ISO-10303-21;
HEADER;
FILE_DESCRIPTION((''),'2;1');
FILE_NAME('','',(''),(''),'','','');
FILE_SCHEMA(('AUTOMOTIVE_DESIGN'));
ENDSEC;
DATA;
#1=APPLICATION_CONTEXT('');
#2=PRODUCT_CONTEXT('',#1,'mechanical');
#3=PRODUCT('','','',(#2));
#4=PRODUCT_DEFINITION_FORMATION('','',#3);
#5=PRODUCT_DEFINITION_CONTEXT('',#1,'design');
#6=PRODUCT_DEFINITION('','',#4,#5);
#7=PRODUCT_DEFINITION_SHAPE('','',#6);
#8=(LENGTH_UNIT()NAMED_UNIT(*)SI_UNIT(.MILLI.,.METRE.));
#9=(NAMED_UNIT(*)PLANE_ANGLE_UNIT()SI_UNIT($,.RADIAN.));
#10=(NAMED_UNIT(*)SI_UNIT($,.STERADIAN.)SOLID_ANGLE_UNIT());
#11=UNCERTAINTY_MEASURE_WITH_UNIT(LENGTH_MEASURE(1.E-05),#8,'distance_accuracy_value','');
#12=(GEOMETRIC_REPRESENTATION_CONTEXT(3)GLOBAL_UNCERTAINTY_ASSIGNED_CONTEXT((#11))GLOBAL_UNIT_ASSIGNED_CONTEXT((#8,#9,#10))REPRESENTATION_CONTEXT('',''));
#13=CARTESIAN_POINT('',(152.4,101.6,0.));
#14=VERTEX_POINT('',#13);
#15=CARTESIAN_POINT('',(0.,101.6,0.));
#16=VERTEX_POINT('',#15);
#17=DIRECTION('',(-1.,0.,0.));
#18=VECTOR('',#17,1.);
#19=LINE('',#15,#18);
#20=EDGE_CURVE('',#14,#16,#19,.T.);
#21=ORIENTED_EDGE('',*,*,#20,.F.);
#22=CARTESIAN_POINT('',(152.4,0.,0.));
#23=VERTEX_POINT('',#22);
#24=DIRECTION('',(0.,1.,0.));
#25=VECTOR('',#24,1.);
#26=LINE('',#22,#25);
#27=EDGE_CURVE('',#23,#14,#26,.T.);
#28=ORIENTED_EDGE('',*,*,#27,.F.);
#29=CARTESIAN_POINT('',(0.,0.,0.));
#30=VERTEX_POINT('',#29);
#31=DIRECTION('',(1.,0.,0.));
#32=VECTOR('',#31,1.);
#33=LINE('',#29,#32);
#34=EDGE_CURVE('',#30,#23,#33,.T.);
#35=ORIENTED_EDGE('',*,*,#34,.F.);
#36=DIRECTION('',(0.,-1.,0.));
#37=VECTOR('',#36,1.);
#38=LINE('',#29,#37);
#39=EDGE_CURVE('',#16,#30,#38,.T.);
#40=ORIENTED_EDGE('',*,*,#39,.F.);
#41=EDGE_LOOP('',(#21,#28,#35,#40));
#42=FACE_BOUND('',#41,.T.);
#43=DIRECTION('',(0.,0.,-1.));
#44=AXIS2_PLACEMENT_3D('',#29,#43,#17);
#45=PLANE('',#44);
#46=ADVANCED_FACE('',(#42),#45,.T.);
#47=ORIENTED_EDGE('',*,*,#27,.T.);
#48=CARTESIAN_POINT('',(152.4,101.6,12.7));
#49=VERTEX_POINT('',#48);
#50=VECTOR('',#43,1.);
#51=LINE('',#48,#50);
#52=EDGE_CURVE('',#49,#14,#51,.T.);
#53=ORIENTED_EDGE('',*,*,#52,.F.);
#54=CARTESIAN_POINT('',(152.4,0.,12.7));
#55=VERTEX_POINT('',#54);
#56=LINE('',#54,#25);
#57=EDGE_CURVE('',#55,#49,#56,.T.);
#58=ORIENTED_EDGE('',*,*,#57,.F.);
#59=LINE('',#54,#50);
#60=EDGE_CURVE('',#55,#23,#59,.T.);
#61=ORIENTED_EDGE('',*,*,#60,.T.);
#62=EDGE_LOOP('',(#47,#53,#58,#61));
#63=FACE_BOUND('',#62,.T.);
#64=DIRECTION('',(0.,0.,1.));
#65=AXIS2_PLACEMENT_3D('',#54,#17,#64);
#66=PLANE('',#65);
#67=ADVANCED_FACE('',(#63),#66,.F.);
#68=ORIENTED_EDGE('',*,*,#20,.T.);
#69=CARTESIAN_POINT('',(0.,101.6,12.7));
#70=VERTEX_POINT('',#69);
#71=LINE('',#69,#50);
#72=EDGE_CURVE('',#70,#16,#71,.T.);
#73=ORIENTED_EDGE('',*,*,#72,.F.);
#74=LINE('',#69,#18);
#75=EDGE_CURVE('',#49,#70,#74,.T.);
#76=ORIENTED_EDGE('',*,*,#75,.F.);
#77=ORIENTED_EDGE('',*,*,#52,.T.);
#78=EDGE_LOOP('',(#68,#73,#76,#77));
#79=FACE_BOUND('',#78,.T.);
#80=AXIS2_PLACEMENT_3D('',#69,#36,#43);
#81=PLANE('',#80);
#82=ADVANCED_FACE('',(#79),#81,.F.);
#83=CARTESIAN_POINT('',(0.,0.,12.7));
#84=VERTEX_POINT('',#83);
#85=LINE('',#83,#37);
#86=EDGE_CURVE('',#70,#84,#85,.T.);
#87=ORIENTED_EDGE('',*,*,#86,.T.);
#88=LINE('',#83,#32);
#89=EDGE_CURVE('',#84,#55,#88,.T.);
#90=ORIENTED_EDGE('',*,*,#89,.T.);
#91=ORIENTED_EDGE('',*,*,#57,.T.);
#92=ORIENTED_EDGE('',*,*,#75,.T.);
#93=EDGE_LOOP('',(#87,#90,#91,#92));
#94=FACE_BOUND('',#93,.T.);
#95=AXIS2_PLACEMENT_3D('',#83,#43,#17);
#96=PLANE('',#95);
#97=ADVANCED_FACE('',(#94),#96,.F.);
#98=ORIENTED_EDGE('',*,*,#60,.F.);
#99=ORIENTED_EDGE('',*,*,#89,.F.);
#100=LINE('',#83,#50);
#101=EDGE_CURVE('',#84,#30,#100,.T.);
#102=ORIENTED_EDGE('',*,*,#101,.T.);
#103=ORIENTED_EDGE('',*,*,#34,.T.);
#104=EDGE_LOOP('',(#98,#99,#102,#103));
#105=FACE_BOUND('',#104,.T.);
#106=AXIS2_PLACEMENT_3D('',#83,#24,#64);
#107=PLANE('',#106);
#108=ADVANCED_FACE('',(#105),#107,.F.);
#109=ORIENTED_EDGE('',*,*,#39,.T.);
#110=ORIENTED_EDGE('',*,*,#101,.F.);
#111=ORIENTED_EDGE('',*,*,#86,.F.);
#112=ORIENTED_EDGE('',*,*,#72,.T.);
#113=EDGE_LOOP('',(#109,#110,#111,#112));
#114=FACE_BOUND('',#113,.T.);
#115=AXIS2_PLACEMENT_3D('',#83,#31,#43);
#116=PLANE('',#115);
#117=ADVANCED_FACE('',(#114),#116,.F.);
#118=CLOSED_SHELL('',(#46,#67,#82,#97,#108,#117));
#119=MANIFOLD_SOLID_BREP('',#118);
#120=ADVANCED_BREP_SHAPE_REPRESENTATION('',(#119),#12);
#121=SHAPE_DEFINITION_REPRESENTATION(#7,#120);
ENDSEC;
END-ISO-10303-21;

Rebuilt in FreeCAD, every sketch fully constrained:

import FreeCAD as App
import Part
import Sketcher

V = App.Vector
Q = App.Units.Quantity


def add_polygon(sketch, points):
    """Adds a closed chain of lines whose ends are joined by coincident constraints."""
    first, n = sketch.GeometryCount, len(points)
    for a, b in zip(points, points[1:] + points[:1]):
        sketch.addGeometry(Part.LineSegment(App.Vector(*a, 0), App.Vector(*b, 0)), False)
    for i in range(n):
        sketch.addConstraint(Sketcher.Constraint("Coincident", first + i, 2, first + (i + 1) % n, 1))

doc = App.newDocument("Part")
body = doc.addObject("PartDesign::Body", "Body")

# Sketch on XY plane
sketch1 = body.newObject("Sketcher::SketchObject", "Sketch")
sketch1.AttachmentSupport = (doc.getObject("XY_Plane"), [""])
sketch1.MapMode = "FlatFace"
add_polygon(sketch1, [(0, 101.6), (0, 0), (152.4, 0), (152.4, 101.6)])  # lines 0-3
sketch1.addConstraint([
    Sketcher.Constraint("Vertical", 0),
    Sketcher.Constraint("Horizontal", 1),
    Sketcher.Constraint("Vertical", 2),
    Sketcher.Constraint("Horizontal", 3),
    Sketcher.Constraint("Coincident", 0, 2, -1, 1),
    Sketcher.Constraint("DistanceX", 1, 1, 1, 2, Q("6 in")),
    Sketcher.Constraint("DistanceY", 0, 2, 0, 1, Q("4 in")),
])
pad1 = body.newObject("PartDesign::Pad", "Pad")
pad1.Profile = sketch1
pad1.Length = Q("0.5 in")

doc.recompute()
